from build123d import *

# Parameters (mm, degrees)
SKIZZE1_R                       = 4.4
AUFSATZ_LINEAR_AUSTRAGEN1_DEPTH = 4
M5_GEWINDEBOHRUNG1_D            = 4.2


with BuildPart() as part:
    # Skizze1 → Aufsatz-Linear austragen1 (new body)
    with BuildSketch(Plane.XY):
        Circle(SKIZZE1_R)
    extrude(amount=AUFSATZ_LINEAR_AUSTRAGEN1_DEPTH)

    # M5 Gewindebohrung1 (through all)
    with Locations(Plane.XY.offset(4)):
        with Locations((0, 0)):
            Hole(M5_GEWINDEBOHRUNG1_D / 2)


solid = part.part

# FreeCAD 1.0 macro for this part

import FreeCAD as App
import Part
import Sketcher
Q = App.Units.Quantity

doc = App.newDocument("Part")
body = doc.addObject("PartDesign::Body", "Body")

sketch1 = body.newObject("Sketcher::SketchObject", "Sketch")
sketch1.AttachmentSupport = (doc.getObject("XY_Plane"), [""])
sketch1.MapMode = "FlatFace"
sketch1.addGeometry(Part.Circle(App.Vector(0, 0, 0), App.Vector(0, 0, 1), 4.4), False)
sketch1.addConstraint(Sketcher.Constraint("Coincident", 0, 3, -1, 1))
sketch1.addConstraint(Sketcher.Constraint("Diameter", 0, Q("8.8 mm")))
pad1 = body.newObject("PartDesign::Pad", "Pad")
pad1.Profile = sketch1
pad1.Length = 4

sketch2 = body.newObject("Sketcher::SketchObject", "Sketch001")
sketch2.AttachmentSupport = (doc.getObject("XY_Plane"), [""])
sketch2.MapMode = "FlatFace"
sketch2.AttachmentOffset = App.Placement(App.Vector(0, 0, 4), App.Rotation())
sketch2.addGeometry(Part.Circle(App.Vector(0, 0, 0), App.Vector(0, 0, 1), 2.1), False)
sketch2.addConstraint(Sketcher.Constraint("Coincident", 0, 3, -1, 1))
sketch2.addConstraint(Sketcher.Constraint("Diameter", 0, Q("4.2 mm")))
doc.recompute()
hole = body.newObject("PartDesign::Hole", "Hole")
hole.Profile = sketch2
hole.ThreadType = "None"
hole.Diameter = 4.2
hole.DepthType = "ThroughAll"

doc.recompute()
